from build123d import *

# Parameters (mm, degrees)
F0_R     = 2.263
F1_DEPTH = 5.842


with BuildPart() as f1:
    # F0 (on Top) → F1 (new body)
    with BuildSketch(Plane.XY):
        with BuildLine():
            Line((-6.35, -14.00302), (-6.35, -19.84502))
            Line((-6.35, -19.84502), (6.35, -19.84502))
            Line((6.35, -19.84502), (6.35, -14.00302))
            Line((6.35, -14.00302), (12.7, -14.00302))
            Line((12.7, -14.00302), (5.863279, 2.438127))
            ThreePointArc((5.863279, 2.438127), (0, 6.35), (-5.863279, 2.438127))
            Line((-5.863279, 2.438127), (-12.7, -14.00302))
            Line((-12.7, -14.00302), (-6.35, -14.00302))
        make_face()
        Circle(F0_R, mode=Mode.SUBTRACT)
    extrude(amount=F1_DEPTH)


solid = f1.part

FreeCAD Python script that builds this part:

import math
import FreeCAD as App
import Part
import Sketcher
from FreeCAD import Vector
Q = App.Units.Quantity

doc = App.newDocument("Part")
body = doc.addObject("PartDesign::Body", "Body")

# Sketch on XY plane
sketch1 = body.newObject("Sketcher::SketchObject", "Sketch")
sketch1.AttachmentSupport = (doc.getObject("XY_Plane"), [""])
sketch1.MapMode = "FlatFace"
sketch1.addGeometry(Part.LineSegment(Vector(-6.35, -14.00302, 0), Vector(-6.35, -19.84502, 0)), False)
sketch1.addGeometry(Part.LineSegment(Vector(-6.35, -19.84502, 0), Vector(6.35, -19.84502, 0)), False)
sketch1.addGeometry(Part.LineSegment(Vector(6.35, -19.84502, 0), Vector(6.35, -14.00302, 0)), False)
sketch1.addGeometry(Part.LineSegment(Vector(6.35, -14.00302, 0), Vector(12.7, -14.00302, 0)), False)
sketch1.addGeometry(Part.LineSegment(Vector(12.7, -14.00302, 0), Vector(5.863279, 2.438127, 0)), False)
sketch1.addGeometry(Part.ArcOfCircle(Part.Circle(Vector(0, 0, 0), Vector(0, 0, 1), 6.35), math.radians(22.579008), math.radians(157.420992)), False)
sketch1.addGeometry(Part.LineSegment(Vector(-5.863279, 2.438127, 0), Vector(-12.7, -14.00302, 0)), False)
sketch1.addGeometry(Part.LineSegment(Vector(-12.7, -14.00302, 0), Vector(-6.35, -14.00302, 0)), False)
sketch1.addGeometry(Part.Circle(Vector(0, 0, 0), Vector(0, 0, 1), 2.263), False)
sketch1.addConstraint(Sketcher.Constraint("Coincident", 0, 2, 1, 1))
sketch1.addConstraint(Sketcher.Constraint("Coincident", 1, 2, 2, 1))
sketch1.addConstraint(Sketcher.Constraint("Coincident", 2, 2, 3, 1))
sketch1.addConstraint(Sketcher.Constraint("Coincident", 3, 2, 4, 1))
sketch1.addConstraint(Sketcher.Constraint("Tangent", 4, 2, 5, 1))
sketch1.addConstraint(Sketcher.Constraint("Tangent", 5, 2, 6, 1))
sketch1.addConstraint(Sketcher.Constraint("Coincident", 6, 2, 7, 1))
sketch1.addConstraint(Sketcher.Constraint("Coincident", 7, 2, 0, 1))
sketch1.addConstraint(Sketcher.Constraint("Vertical", 0))
sketch1.addConstraint(Sketcher.Constraint("Horizontal", 1))
sketch1.addConstraint(Sketcher.Constraint("Vertical", 2))
sketch1.addConstraint(Sketcher.Constraint("Horizontal", 3))
sketch1.addConstraint(Sketcher.Constraint("Horizontal", 7))
sketch1.addConstraint(Sketcher.Constraint("Coincident", 5, 3, -1, 1))
sketch1.addConstraint(Sketcher.Constraint("Coincident", 8, 3, -1, 1))
sketch1.addConstraint(Sketcher.Constraint("Symmetric", 3, 2, 6, 2, -2))
sketch1.addConstraint(Sketcher.Constraint("Equal", 3, 7))
sketch1.addConstraint(Sketcher.Constraint("Radius", 5, Q("0.25 in")))
sketch1.addConstraint(Sketcher.Constraint("DistanceX", 1, 1, 1, 2, Q("0.5 in")))
sketch1.addConstraint(Sketcher.Constraint("DistanceX", 3, 1, 3, 2, Q("0.25 in")))
sketch1.addConstraint(Sketcher.Constraint("DistanceY", 0, 2, 0, 1, Q("0.23 in")))
sketch1.addConstraint(Sketcher.Constraint("Diameter", 8, 4.526))
sketch1.addConstraint(Sketcher.Constraint("DistanceY", 0, 2, -1, 1, Q("0.7813 in")))
pad1 = body.newObject("PartDesign::Pad", "Pad")
pad1.Profile = sketch1
pad1.Length = Q("0.23 in")

doc.recompute()
